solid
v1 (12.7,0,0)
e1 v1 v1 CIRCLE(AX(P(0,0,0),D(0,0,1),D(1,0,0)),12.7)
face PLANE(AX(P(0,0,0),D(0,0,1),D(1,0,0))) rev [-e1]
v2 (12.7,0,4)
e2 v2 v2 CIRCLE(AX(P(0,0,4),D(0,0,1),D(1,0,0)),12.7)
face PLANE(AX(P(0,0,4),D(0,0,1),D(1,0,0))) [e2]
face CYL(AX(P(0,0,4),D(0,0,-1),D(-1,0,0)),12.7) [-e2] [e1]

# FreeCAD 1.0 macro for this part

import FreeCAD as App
import Part
import Sketcher

V = App.Vector

doc = App.newDocument("Part")
body = doc.addObject("PartDesign::Body", "Body")

# Sketch on XY plane
sketch1 = body.newObject("Sketcher::SketchObject", "Sketch")
sketch1.AttachmentSupport = (doc.getObject("XY_Plane"), [""])
sketch1.MapMode = "FlatFace"
sketch1.addGeometry(Part.Circle(V(0, 0, 0), V(0, 0, 1), 13), False)
sketch1.addConstraint([
    Sketcher.Constraint("Coincident", 0, 3, -1, 1),
    Sketcher.Constraint("Diameter", 0, 25.4),
])
pad1 = body.newObject("PartDesign::Pad", "Pad")
pad1.Profile = sketch1
pad1.Length = 4

doc.recompute()
